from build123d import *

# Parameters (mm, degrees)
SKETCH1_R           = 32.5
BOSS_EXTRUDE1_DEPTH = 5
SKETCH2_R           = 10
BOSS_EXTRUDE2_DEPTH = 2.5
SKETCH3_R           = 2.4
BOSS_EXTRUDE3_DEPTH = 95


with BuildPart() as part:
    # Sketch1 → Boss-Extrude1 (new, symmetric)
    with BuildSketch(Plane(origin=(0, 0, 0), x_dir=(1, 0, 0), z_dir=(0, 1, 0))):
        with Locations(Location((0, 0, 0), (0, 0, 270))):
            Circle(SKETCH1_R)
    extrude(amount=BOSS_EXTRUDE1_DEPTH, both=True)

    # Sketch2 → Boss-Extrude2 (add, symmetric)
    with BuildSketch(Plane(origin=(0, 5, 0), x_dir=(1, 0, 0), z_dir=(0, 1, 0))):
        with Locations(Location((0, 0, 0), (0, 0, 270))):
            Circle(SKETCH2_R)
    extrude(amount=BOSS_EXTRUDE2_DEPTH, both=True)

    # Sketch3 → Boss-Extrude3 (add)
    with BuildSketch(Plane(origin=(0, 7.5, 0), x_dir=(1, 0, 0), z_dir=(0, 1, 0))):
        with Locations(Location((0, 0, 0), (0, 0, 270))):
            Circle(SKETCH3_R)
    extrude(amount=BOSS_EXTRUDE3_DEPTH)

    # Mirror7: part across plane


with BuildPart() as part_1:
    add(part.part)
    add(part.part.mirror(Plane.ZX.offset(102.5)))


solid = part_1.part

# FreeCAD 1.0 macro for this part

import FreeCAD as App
import Part
import Sketcher

doc = App.newDocument("Part")
body = doc.addObject("PartDesign::Body", "Body")

# Sketch on XZ plane
sketch1 = body.newObject("Sketcher::SketchObject", "Sketch")
sketch1.AttachmentSupport = (doc.getObject("XZ_Plane"), [""])
sketch1.MapMode = "FlatFace"
sketch1.addGeometry(Part.Circle(App.Vector(0, 0, 0), App.Vector(0, 0, 1), 32), False)
sketch1.addConstraint(Sketcher.Constraint("Coincident", 0, 3, -1, 1))
sketch1.addConstraint(Sketcher.Constraint("Diameter", 0, 65.0))
pad1 = body.newObject("PartDesign::Pad", "Pad")
pad1.Profile = sketch1
pad1.Length = 10
pad1.Midplane = True

# Sketch on XZ plane
sketch2 = body.newObject("Sketcher::SketchObject", "Sketch001")
sketch2.AttachmentSupport = (doc.getObject("XZ_Plane"), [""])
sketch2.MapMode = "FlatFace"
sketch2.AttachmentOffset = App.Placement(App.Vector(0, 0, -5), App.Rotation())
sketch2.addGeometry(Part.Circle(App.Vector(0, 0, 0), App.Vector(0, 0, 1), 10), False)
sketch2.addConstraint(Sketcher.Constraint("Coincident", 0, 3, -1, 1))
sketch2.addConstraint(Sketcher.Constraint("Diameter", 0, 20.0))
pad2 = body.newObject("PartDesign::Pad", "Pad001")
pad2.Profile = sketch2
pad2.Length = 5
pad2.Midplane = True

# Sketch on XZ plane
sketch3 = body.newObject("Sketcher::SketchObject", "Sketch002")
sketch3.AttachmentSupport = (doc.getObject("XZ_Plane"), [""])
sketch3.MapMode = "FlatFace"
sketch3.AttachmentOffset = App.Placement(App.Vector(0, 0, -7.5), App.Rotation())
sketch3.addGeometry(Part.Circle(App.Vector(0, 0, 0), App.Vector(0, 0, 1), 2.4), False)
sketch3.addConstraint(Sketcher.Constraint("Coincident", 0, 3, -1, 1))
sketch3.addConstraint(Sketcher.Constraint("Diameter", 0, 4.8))
pad3 = body.newObject("PartDesign::Pad", "Pad002")
pad3.Profile = sketch3
pad3.Length = 95
pad3.Reversed = True
body2 = doc.addObject("PartDesign::Body", "Body001")
doc.recompute()

body2.BaseFeature = body
doc.recompute()

mirroring = doc.addObject("Part::Mirroring", "Mirroring")
mirroring.Source = body
mirroring.Base = App.Vector(0, 102.5, 0)
mirroring.Normal = App.Vector(0, 1, 0)
body3 = doc.addObject("PartDesign::Body", "Body002")
body3.BaseFeature = mirroring
boolean = body2.newObject("PartDesign::Boolean", "Boolean")
boolean.Type = "Fuse"
boolean.addObjects([body3])
doc.recompute()
mirroring.Visibility = False

doc.recompute()
